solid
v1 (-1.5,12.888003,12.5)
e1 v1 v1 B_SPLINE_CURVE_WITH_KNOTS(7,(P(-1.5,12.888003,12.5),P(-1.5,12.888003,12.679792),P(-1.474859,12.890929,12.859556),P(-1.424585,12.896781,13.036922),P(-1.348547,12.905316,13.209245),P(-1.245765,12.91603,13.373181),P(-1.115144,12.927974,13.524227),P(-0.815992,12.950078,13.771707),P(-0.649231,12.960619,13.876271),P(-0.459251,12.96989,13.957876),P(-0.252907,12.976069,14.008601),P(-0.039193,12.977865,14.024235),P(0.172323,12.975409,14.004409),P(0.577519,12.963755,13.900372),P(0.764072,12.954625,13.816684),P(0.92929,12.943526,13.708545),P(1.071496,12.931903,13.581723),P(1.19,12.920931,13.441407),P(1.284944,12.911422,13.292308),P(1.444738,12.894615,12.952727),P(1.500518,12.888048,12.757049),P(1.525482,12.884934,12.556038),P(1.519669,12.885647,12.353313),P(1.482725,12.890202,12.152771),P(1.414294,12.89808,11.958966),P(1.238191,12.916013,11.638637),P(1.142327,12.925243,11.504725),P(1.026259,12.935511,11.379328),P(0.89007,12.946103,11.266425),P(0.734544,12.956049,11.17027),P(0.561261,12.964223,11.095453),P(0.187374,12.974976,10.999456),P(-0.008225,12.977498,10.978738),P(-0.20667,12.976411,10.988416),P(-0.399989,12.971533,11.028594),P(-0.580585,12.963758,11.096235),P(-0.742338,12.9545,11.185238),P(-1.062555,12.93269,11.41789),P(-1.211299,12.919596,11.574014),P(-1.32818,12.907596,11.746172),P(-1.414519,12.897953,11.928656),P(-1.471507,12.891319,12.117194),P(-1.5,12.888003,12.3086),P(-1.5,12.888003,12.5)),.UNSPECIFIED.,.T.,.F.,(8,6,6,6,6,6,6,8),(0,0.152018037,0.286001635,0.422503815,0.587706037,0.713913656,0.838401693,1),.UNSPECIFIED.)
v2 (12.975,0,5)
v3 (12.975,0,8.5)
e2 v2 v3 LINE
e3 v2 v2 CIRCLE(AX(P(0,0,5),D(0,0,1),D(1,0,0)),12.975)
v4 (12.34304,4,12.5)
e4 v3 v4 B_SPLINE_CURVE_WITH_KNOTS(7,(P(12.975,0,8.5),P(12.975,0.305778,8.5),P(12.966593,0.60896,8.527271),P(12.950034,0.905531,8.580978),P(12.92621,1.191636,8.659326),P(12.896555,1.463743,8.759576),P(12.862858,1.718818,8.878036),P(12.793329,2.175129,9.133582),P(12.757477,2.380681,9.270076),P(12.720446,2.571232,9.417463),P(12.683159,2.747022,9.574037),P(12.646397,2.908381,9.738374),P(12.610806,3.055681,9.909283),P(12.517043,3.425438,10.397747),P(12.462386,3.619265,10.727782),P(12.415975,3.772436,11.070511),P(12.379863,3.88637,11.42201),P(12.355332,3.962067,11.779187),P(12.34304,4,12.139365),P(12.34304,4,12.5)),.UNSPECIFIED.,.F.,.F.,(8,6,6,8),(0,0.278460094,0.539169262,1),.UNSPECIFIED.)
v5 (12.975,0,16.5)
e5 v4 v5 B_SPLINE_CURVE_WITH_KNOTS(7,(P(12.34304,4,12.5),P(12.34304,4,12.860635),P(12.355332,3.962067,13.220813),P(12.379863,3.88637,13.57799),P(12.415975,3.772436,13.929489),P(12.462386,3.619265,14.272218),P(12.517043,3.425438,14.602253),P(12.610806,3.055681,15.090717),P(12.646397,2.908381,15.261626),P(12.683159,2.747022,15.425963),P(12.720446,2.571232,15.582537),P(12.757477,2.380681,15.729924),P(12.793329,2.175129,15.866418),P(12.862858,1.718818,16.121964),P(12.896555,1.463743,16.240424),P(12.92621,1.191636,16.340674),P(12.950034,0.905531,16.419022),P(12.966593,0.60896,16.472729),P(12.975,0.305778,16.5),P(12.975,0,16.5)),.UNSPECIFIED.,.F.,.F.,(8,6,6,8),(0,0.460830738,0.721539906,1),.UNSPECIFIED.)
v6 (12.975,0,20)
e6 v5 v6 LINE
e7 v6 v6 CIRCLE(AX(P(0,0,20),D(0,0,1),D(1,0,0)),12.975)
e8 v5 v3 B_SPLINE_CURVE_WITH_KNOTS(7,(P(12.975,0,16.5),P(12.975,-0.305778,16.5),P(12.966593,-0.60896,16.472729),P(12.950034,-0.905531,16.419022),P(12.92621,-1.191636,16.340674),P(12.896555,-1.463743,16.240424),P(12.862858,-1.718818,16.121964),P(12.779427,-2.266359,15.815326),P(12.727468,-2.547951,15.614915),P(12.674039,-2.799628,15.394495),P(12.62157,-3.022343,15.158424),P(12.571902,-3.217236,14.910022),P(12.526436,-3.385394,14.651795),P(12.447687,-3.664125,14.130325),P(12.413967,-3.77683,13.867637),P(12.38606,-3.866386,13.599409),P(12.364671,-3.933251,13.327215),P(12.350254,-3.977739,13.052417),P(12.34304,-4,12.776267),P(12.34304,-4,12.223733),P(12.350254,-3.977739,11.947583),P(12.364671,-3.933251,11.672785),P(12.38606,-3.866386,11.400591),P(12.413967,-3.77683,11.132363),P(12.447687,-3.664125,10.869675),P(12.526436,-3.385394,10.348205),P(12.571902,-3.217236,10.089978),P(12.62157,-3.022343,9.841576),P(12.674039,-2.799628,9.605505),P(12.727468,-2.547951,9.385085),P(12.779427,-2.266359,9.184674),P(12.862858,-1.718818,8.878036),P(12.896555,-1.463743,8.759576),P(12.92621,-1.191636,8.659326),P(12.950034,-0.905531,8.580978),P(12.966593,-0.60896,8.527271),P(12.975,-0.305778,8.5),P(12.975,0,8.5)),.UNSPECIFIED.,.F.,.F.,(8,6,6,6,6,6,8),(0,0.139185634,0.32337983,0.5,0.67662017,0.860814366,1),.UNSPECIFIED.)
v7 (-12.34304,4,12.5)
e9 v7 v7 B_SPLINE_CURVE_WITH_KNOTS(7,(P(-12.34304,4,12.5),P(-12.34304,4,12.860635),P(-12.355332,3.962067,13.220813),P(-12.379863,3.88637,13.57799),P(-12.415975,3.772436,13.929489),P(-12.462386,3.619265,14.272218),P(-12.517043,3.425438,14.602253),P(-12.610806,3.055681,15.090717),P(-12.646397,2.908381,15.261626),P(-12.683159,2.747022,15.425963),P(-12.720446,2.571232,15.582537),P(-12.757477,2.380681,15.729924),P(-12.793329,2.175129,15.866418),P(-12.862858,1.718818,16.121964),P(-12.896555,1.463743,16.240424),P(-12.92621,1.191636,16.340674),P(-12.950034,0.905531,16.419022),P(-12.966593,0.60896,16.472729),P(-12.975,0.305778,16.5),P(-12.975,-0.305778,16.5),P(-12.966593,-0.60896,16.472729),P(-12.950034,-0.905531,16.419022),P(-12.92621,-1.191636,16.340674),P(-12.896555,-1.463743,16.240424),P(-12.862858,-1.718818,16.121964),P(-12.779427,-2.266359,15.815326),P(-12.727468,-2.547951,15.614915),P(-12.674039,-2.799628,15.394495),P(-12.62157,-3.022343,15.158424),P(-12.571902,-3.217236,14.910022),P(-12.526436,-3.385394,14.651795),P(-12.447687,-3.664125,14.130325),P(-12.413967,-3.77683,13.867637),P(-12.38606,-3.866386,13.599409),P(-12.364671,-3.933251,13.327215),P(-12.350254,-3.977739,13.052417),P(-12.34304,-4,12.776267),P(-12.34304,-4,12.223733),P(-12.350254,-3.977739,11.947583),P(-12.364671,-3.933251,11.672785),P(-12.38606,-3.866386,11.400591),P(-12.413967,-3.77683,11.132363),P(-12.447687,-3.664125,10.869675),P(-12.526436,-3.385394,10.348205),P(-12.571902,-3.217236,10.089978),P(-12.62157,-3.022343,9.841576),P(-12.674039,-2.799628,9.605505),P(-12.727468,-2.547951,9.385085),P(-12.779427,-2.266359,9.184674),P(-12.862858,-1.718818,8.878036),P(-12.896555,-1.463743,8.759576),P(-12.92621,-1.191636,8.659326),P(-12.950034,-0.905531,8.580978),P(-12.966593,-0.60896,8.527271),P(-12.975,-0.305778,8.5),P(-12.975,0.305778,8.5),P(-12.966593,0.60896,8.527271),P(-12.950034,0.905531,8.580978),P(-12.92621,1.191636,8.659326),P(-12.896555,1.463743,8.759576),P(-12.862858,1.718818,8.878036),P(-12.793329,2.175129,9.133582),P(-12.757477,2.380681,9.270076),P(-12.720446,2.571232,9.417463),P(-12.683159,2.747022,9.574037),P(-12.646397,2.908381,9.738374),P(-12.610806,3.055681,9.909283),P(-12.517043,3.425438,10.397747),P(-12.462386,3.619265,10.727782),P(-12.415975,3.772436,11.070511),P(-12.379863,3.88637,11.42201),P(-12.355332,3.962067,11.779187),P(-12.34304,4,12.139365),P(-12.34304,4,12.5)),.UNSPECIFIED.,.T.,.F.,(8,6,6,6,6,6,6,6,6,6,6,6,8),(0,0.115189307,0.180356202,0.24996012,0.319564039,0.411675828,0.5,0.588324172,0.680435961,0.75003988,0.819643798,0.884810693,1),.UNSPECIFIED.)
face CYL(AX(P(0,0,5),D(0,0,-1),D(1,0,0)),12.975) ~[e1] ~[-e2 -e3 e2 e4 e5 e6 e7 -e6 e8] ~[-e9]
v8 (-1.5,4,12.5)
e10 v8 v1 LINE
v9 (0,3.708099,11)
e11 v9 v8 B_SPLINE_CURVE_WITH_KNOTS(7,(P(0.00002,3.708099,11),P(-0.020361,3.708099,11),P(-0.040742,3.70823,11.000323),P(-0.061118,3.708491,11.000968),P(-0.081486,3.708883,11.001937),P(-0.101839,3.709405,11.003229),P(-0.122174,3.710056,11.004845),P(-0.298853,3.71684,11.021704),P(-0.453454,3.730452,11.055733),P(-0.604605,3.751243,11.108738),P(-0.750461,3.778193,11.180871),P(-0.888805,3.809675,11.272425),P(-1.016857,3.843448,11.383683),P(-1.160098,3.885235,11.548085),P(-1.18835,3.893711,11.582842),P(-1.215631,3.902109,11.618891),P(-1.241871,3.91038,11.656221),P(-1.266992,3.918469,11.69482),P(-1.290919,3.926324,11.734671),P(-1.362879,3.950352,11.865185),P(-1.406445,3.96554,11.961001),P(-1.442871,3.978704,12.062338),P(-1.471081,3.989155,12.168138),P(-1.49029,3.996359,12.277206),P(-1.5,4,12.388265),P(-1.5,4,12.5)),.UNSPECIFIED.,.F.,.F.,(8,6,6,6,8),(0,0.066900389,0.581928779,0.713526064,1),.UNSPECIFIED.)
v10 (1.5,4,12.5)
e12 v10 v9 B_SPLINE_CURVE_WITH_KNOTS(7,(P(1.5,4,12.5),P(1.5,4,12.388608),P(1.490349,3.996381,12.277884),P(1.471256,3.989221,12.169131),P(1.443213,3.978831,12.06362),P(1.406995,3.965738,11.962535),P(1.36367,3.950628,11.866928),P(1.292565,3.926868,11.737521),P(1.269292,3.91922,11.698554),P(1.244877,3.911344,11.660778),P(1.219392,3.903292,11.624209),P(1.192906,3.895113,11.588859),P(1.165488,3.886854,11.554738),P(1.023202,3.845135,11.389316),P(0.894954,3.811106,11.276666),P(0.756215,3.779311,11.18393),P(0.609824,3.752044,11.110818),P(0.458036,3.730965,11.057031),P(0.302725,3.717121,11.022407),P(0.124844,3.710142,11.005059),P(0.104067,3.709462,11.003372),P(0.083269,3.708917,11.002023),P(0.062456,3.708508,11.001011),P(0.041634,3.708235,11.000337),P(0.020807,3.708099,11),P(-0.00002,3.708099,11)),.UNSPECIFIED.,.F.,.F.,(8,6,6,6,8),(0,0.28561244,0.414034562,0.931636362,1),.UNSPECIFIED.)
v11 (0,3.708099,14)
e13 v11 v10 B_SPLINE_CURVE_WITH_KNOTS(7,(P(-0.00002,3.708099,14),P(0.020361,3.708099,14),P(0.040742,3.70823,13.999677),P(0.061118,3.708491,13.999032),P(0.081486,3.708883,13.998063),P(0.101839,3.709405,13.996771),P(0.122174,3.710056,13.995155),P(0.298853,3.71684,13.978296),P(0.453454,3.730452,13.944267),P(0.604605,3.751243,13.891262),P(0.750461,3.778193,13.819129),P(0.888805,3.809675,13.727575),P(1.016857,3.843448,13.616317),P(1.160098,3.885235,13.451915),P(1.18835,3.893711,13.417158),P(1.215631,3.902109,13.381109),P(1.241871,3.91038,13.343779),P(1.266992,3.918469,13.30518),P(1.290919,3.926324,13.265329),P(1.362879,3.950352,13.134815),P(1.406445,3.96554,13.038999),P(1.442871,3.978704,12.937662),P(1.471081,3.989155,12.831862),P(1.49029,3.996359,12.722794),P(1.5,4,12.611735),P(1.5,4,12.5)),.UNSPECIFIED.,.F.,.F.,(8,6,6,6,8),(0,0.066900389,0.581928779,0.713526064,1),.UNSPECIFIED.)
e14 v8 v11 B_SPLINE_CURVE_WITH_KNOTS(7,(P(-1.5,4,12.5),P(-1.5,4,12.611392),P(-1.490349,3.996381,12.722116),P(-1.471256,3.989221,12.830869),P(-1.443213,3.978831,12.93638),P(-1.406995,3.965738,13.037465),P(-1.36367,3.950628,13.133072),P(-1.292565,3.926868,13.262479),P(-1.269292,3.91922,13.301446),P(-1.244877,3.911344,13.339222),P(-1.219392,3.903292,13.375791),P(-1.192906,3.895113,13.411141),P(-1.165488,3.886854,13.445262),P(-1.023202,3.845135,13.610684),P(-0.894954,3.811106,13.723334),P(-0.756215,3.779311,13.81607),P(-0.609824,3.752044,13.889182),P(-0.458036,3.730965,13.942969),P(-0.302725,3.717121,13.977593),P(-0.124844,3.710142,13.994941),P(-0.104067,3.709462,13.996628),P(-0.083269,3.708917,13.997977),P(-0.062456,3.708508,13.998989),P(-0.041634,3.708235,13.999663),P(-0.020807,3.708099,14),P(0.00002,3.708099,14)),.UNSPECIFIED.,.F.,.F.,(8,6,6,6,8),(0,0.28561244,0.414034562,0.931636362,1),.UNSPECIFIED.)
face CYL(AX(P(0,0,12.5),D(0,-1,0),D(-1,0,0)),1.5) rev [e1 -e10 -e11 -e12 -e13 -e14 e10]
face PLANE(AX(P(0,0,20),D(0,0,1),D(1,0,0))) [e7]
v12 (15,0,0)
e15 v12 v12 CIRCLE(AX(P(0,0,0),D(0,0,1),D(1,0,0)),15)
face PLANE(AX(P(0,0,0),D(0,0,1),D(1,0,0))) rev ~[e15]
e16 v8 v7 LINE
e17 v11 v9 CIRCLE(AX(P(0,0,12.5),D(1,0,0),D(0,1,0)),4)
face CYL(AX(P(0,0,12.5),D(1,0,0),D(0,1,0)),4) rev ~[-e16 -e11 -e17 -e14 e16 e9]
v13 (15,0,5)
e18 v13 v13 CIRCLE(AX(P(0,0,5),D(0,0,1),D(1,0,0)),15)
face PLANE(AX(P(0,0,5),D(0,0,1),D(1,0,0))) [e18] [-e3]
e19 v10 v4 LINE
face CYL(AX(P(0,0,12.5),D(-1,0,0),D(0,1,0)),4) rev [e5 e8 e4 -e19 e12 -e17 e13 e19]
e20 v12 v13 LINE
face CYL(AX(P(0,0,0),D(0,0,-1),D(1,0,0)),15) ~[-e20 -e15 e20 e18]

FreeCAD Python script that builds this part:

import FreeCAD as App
import Part
import Sketcher

V = App.Vector

doc = App.newDocument("Part")
body = doc.addObject("PartDesign::Body", "Body")

sketch1 = doc.addObject("Sketcher::SketchObject", "Sketch")
body.addObject(sketch1)
sketch1.AttachmentSupport = (doc.XY_Plane, [""])
sketch1.MapMode = "FlatFace"
sketch1.addGeometry(Part.Circle(V(0, 0, 0), V(0, 0, 1), 15), False)
sketch1.addConstraint([
    Sketcher.Constraint("Coincident", 0, 3, -1, 1),
    Sketcher.Constraint("Diameter", 0, 30.0),
])
pad1 = doc.addObject("PartDesign::Pad", "Pad")
body.addObject(pad1)
pad1.Profile = sketch1
pad1.Length = 5

sketch2 = doc.addObject("Sketcher::SketchObject", "Sketch001")
body.addObject(sketch2)
sketch2.AttachmentSupport = (doc.XY_Plane, [""])
sketch2.MapMode = "FlatFace"
sketch2.AttachmentOffset = App.Placement(V(0, 0, 5), App.Rotation())
sketch2.addGeometry(Part.Circle(V(0, 0, 0), V(0, 0, 1), 12.975), False)
sketch2.addConstraint([
    Sketcher.Constraint("Coincident", 0, 3, -1, 1),
    Sketcher.Constraint("Diameter", 0, 25.95),
])
pad2 = doc.addObject("PartDesign::Pad", "Pad001")
body.addObject(pad2)
pad2.Profile = sketch2
pad2.Length = 15

sketch3 = doc.addObject("Sketcher::SketchObject", "Sketch002")
body.addObject(sketch3)
sketch3.AttachmentSupport = (doc.XZ_Plane, [""])
sketch3.MapMode = "FlatFace"
sketch3.addGeometry(Part.Circle(V(0, 12.5, 0), V(0, 0, 1), 1.5), False)
sketch3.addConstraint([
    Sketcher.Constraint("PointOnObject", 0, 3, -2),
    Sketcher.Constraint("Diameter", 0, 3.0),
    Sketcher.Constraint("DistanceY", -1, 1, 0, 3, 12.5),
])
pocket1 = doc.addObject("PartDesign::Pocket", "Pocket")
body.addObject(pocket1)
pocket1.Profile = sketch3
pocket1.Length = 20

sketch4 = doc.addObject("Sketcher::SketchObject", "Sketch003")
body.addObject(sketch4)
sketch4.AttachmentSupport = (doc.YZ_Plane, [""])
sketch4.MapMode = "FlatFace"
sketch4.addGeometry(Part.Circle(V(0, 12.5, 0), V(0, 0, 1), 4), False)
sketch4.addConstraint([
    Sketcher.Constraint("PointOnObject", 0, 3, -2),
    Sketcher.Constraint("Diameter", 0, 8.0),
    Sketcher.Constraint("DistanceY", -1, 1, 0, 3, 12.5),
])
pocket2 = doc.addObject("PartDesign::Pocket", "Pocket001")
body.addObject(pocket2)
pocket2.Profile = sketch4
pocket2.Length = 35
pocket2.Midplane = True

doc.recompute()
